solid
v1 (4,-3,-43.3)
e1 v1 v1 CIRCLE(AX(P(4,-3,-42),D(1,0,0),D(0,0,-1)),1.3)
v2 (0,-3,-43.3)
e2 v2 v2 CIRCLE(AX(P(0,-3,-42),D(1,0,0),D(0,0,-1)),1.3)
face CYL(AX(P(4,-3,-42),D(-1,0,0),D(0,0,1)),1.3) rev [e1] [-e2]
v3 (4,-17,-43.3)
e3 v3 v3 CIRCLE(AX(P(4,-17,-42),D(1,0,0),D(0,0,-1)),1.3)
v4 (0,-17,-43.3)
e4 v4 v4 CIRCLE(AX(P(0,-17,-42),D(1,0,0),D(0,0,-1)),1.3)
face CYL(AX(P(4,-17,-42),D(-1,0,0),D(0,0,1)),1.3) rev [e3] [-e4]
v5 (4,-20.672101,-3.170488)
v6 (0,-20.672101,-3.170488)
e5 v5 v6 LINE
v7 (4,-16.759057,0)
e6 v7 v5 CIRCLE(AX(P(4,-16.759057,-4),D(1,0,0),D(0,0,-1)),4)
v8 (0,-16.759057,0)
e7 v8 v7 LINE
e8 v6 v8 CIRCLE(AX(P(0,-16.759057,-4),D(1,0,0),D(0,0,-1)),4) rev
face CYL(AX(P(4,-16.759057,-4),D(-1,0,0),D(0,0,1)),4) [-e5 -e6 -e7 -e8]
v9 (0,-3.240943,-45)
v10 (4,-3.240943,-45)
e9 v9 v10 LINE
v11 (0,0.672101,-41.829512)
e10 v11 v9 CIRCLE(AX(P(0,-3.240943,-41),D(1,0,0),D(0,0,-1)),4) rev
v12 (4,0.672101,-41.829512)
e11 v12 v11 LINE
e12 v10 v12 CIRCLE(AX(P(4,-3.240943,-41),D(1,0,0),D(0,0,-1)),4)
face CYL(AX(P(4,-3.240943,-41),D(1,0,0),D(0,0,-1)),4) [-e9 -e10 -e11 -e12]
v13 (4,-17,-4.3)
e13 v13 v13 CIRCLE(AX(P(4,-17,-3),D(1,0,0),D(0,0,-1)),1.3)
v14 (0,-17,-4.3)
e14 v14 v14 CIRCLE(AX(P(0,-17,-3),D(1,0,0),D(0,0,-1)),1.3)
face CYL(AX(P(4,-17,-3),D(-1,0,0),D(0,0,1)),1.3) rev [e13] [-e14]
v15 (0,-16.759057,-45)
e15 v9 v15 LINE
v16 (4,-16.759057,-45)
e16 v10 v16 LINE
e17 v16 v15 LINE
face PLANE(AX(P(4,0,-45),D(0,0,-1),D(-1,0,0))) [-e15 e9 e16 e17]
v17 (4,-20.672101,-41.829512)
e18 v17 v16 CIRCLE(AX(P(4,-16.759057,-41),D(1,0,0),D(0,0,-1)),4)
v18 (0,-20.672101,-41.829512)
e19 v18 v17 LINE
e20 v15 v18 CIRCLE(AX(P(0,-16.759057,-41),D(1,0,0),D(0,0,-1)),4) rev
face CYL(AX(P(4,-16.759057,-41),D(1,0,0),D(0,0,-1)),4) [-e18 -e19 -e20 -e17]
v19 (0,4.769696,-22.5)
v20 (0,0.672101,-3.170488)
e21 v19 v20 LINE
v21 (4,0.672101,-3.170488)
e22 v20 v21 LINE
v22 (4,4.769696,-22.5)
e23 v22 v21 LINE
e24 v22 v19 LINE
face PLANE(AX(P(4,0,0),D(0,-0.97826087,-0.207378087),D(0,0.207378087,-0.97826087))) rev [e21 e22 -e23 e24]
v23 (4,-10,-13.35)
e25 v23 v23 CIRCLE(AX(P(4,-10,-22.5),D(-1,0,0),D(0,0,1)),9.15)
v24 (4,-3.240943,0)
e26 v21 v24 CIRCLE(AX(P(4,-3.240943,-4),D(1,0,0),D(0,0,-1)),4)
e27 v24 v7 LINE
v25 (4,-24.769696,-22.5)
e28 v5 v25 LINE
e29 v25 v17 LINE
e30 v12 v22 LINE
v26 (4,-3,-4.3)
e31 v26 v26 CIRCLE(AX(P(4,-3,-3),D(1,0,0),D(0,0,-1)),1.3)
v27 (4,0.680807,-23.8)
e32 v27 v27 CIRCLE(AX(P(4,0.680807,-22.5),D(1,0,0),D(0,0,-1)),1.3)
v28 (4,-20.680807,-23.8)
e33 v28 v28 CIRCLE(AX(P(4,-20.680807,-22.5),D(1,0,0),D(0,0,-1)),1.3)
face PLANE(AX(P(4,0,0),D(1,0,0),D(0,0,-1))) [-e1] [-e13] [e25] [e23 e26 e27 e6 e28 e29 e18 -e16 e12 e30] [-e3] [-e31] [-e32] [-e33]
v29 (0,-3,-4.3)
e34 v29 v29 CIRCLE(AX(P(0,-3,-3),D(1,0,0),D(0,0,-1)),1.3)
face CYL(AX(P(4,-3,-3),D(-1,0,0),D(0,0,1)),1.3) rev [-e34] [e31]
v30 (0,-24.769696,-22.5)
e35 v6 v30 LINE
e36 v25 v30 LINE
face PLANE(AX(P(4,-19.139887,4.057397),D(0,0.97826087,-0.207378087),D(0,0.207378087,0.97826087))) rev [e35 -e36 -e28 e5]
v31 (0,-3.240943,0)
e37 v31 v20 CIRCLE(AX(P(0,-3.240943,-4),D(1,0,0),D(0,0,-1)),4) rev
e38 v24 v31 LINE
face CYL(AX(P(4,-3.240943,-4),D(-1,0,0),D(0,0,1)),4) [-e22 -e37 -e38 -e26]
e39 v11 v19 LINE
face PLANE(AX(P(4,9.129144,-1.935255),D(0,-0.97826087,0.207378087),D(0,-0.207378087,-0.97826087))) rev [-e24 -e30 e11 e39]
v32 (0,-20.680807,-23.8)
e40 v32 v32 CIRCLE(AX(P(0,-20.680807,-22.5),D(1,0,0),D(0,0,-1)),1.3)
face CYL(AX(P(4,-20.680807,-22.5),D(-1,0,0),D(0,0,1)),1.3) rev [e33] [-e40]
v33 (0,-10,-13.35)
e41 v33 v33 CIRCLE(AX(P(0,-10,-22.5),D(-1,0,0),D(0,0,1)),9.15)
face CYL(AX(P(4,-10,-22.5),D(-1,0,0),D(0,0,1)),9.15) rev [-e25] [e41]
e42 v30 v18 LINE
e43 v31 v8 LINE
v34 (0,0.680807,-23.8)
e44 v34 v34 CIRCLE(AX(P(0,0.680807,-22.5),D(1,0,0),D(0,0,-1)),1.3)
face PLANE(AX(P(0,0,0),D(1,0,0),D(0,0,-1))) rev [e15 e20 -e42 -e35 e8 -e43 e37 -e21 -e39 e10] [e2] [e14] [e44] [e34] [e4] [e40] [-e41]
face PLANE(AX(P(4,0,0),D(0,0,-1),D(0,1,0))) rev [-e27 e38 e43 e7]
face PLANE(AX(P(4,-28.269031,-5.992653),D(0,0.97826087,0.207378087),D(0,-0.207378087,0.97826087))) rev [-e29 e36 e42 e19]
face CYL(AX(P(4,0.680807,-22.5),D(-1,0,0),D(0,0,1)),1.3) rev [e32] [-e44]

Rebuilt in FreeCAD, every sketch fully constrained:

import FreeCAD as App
import Part
import Sketcher

V = App.Vector


def edges_at(feature, points):
    """Names of the edges that pass closest to the given points."""
    edges = feature.Shape.Edges
    near = lambda p: min(range(len(edges)), key=lambda i: edges[i].distToShape(Part.Vertex(*p))[0])
    return sorted({f"Edge{near(p) + 1}" for p in points})


def add_polygon(sketch, points):
    """Adds a closed chain of lines whose ends are joined by coincident constraints."""
    first, n = sketch.GeometryCount, len(points)
    for a, b in zip(points, points[1:] + points[:1]):
        sketch.addGeometry(Part.LineSegment(App.Vector(*a, 0), App.Vector(*b, 0)), False)
    for i in range(n):
        sketch.addConstraint(Sketcher.Constraint("Coincident", first + i, 2, first + (i + 1) % n, 1))

doc = App.newDocument("Part")
body = doc.addObject("PartDesign::Body", "Body")

# Sketch on YZ plane
sketch1 = doc.addObject("Sketcher::SketchObject", "Sketch")
body.addObject(sketch1)
sketch1.AttachmentSupport = (doc.YZ_Plane, [""])
sketch1.MapMode = "FlatFace"
add_polygon(sketch1, [(0, -45), (4.8, -22.5), (0, 0), (-20, 0), (-24.8, -22.5), (-20, -45)])  # lines 0-5
sketch1.addGeometry(Part.Circle(V(-17, -3, 0), V(0, 0, 1), 1.3), False)  # 6
sketch1.addGeometry(Part.Circle(V(-20.7, -22.5, 0), V(0, 0, 1), 1.3), False)  # 7
sketch1.addGeometry(Part.Circle(V(-17, -42, 0), V(0, 0, 1), 1.3), False)  # 8
sketch1.addGeometry(Part.Circle(V(-3, -3, 0), V(0, 0, 1), 1.3), False)  # 9
sketch1.addGeometry(Part.Circle(V(0.7, -22.5, 0), V(0, 0, 1), 1.3), False)  # 10
sketch1.addGeometry(Part.Circle(V(-3, -42, 0), V(0, 0, 1), 1.3), False)  # 11
sketch1.addConstraint([
    Sketcher.Constraint("Horizontal", 2),
    Sketcher.Constraint("Horizontal", 5),
    Sketcher.Constraint("Coincident", 1, 2, -1, 1),
    Sketcher.Constraint("Equal", 6, 7),
    Sketcher.Constraint("Equal", 7, 8),
    Sketcher.Constraint("Equal", 8, 9),
    Sketcher.Constraint("Equal", 9, 10),
    Sketcher.Constraint("Equal", 10, 11),
    Sketcher.Constraint("PointOnObject", 5, 2, -2),
    Sketcher.Constraint("Parallel", 0, 3),
    Sketcher.Constraint("Parallel", 1, 4),
    Sketcher.Constraint("Horizontal", 6, 3, 9, 3),
    Sketcher.Constraint("Horizontal", 7, 3, 10, 3),
    Sketcher.Constraint("Horizontal", 8, 3, 11, 3),
    Sketcher.Constraint("Horizontal", 10, 3, 0, 2),
    Sketcher.Constraint("Horizontal", 0, 2, 3, 2),
    Sketcher.Constraint("Vertical", 6, 3, 8, 3),
    Sketcher.Constraint("Vertical", 9, 3, 11, 3),
    Sketcher.Constraint("Vertical", 2, 2, 4, 2),
    Sketcher.Constraint("Diameter", 6, 2.6),
    Sketcher.Constraint("DistanceX", 2, 2, 2, 1, 20.0),
    Sketcher.Constraint("Distance", 0, 23.0),
    Sketcher.Constraint("DistanceX", 6, 3, -1, 1, 17.0),
    Sketcher.Constraint("DistanceY", 6, 3, -1, 1, 3.0),
    Sketcher.Constraint("DistanceY", 8, 3, -1, 1, 42.0),
    Sketcher.Constraint("DistanceX", 9, 3, -1, 1, 3.0),
    Sketcher.Constraint("DistanceY", 4, 2, -1, 1, 45.0),
    Sketcher.Constraint("DistanceX", 10, 3, 0, 2, 4.088889),
    Sketcher.Constraint("DistanceX", 3, 2, 7, 3, 4.088889),
])
pad1 = doc.addObject("PartDesign::Pad", "Pad")
body.addObject(pad1)
pad1.Profile = sketch1
pad1.Length = 4

# Sketch on YZ plane
sketch2 = doc.addObject("Sketcher::SketchObject", "Sketch001")
body.addObject(sketch2)
sketch2.AttachmentSupport = (doc.YZ_Plane, [""])
sketch2.MapMode = "FlatFace"
sketch2.addGeometry(Part.Circle(V(-10, -22, 0), V(0, 0, 1), 9), False)
sketch2.addConstraint([
    Sketcher.Constraint("Diameter", 0, 18.3),
    Sketcher.Constraint("DistanceX", 0, 3, -1, 1, 10.0),
    Sketcher.Constraint("DistanceY", 0, 3, -1, 1, 22.5),
])
pocket1 = doc.addObject("PartDesign::Pocket", "Pocket")
body.addObject(pocket1)
pocket1.Profile = sketch2
pocket1.Type = "ThroughAll"
pocket1.Reversed = True
doc.recompute()

fillet = doc.addObject("PartDesign::Fillet", "Fillet")
body.addObject(fillet)
fillet.Base = (pocket1, edges_at(pocket1, [
    (2, -20, 0),
    (2, 0, 0),
    (2, 0, -45),
    (2, -20, -45),
]))
fillet.Radius = 4

doc.recompute()
